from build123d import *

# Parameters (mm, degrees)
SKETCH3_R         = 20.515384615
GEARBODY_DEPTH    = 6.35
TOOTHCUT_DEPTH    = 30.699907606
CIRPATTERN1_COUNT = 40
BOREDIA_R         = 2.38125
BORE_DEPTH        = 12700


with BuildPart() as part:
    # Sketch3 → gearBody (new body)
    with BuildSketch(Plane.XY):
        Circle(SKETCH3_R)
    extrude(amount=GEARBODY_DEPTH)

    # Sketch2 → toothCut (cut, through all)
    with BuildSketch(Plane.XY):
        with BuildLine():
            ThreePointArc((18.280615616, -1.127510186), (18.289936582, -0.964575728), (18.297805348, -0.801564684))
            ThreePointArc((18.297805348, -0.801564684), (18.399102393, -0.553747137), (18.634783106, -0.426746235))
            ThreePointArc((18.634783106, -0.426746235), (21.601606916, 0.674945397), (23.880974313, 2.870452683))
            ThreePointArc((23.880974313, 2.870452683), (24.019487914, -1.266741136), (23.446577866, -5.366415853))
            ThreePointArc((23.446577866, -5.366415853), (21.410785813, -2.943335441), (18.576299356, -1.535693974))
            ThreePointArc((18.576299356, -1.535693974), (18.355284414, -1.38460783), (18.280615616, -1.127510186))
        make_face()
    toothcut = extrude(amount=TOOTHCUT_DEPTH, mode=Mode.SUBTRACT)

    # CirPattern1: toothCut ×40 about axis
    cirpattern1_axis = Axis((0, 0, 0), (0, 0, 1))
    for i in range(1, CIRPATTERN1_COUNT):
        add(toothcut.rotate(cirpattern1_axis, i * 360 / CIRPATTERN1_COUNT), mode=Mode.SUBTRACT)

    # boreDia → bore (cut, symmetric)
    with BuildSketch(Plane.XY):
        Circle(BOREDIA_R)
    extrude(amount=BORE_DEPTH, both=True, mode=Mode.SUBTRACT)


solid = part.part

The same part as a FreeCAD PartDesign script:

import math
import FreeCAD as App
import Part
import Sketcher
from FreeCAD import Vector
Q = App.Units.Quantity

doc = App.newDocument("Part")
body = doc.addObject("PartDesign::Body", "Body")

# Sketch on XY plane
sketch1 = doc.addObject("Sketcher::SketchObject", "Sketch")
body.addObject(sketch1)
sketch1.AttachmentSupport = (doc.XY_Plane, [""])
sketch1.MapMode = "FlatFace"
sketch1.addGeometry(Part.Circle(Vector(0, 0, 0), Vector(0, 0, 1), 20.515385), False)
sketch1.addConstraint([
    Sketcher.Constraint("Coincident", 0, 3, -1, 1),
    Sketcher.Constraint("Diameter", 0, 41.030769),
])
pad1 = doc.addObject("PartDesign::Pad", "Pad")
body.addObject(pad1)
pad1.Profile = sketch1
pad1.Length = Q("0.25 in")

# Sketch on XY plane
sketch2 = doc.addObject("Sketcher::SketchObject", "Sketch001")
body.addObject(sketch2)
sketch2.AttachmentSupport = (doc.XY_Plane, [""])
sketch2.MapMode = "FlatFace"
sketch2.addGeometry([
    Part.ArcOfCircle(Part.Circle(Vector(0.000001, 0, 0), Vector(0, 0, 1), 18.315353), math.radians(-3.529413), math.radians(-2.50833)),  # 0
    Part.ArcOfCircle(Part.Circle(Vector(18.676494, -1.151927, 0), Vector(0, 0, 1), 0.396631), math.radians(176.470587), math.radians(255.367711)),  # 1
    Part.ArcOfCircle(Part.Circle(Vector(16.617857, -9.036939, 0), Vector(0, 0, 1), 7.752688), math.radians(28.258585), math.radians(75.367711)),  # 2
    Part.ArcOfCircle(Part.Circle(Vector(0, 0, 0), Vector(0, 0, 1), 24.052867), math.radians(-12.891717), math.radians(6.853974)),  # 3
    Part.ArcOfCircle(Part.Circle(Vector(17.476212, 7.238884, 0), Vector(0, 0, 1), 7.752688), math.radians(-81.405454), math.radians(-34.296328)),  # 4
    Part.ArcOfCircle(Part.Circle(Vector(18.694056, -0.818923, 0), Vector(0, 0, 1), 0.396631), math.radians(98.594546), math.radians(177.491671)),  # 5
], False)
sketch2.addConstraint([
    Sketcher.Constraint("Tangent", 0, 1, 1, 1),
    Sketcher.Constraint("Tangent", 1, 2, 2, 2),
    Sketcher.Constraint("Coincident", 2, 1, 3, 1),
    Sketcher.Constraint("Coincident", 3, 2, 4, 2),
    Sketcher.Constraint("Tangent", 4, 1, 5, 1),
    Sketcher.Constraint("Tangent", 5, 2, 0, 2),
    Sketcher.Constraint("Coincident", 0, 3, -1, 1),
    Sketcher.Constraint("Coincident", 3, 3, -1, 1),
    Sketcher.Constraint("Equal", 2, 4),
    Sketcher.Constraint("Equal", 1, 5),
    Sketcher.Constraint("Radius", 1, 0.396631),
    Sketcher.Constraint("Radius", 2, 7.752688),
    Sketcher.Constraint("Radius", 0, 18.315353),
    Sketcher.Constraint("Radius", 3, 24.052867),
    Sketcher.Constraint("DistanceY", 0, 1, 3, 2, Q("0.1574001 in")),
    Sketcher.Constraint("DistanceX", -1, 1, 1, 2, 18.576299),
    Sketcher.Constraint("DistanceX", 2, 3, 5, 3, 2.076199),
    Sketcher.Constraint("DistanceY", 4, 1, 3, 2, 3.297199),
])
pocket1 = doc.addObject("PartDesign::Pocket", "Pocket")
body.addObject(pocket1)
pocket1.Profile = sketch2
pocket1.Type = "ThroughAll"
pocket1.Reversed = True
doc.recompute()

polarpattern = doc.addObject("PartDesign::PolarPattern", "PolarPattern")
body.addObject(polarpattern)
polarpattern.Originals = [pocket1]
polarpattern.Axis = (doc.Z_Axis, [""])
polarpattern.Angle = 360
polarpattern.Occurrences = 40
body.Tip = polarpattern

# Sketch on XY plane
sketch3 = doc.addObject("Sketcher::SketchObject", "Sketch002")
body.addObject(sketch3)
sketch3.AttachmentSupport = (doc.XY_Plane, [""])
sketch3.MapMode = "FlatFace"
sketch3.addGeometry(Part.Circle(Vector(0, 0, 0), Vector(0, 0, 1), 2.38125), False)
sketch3.addConstraint([
    Sketcher.Constraint("Coincident", 0, 3, -1, 1),
    Sketcher.Constraint("Diameter", 0, Q("0.1875 in")),
])
pocket2 = doc.addObject("PartDesign::Pocket", "Pocket001")
body.addObject(pocket2)
pocket2.Profile = sketch3
pocket2.Length = Q("1000 in")
pocket2.Midplane = True

doc.recompute()
